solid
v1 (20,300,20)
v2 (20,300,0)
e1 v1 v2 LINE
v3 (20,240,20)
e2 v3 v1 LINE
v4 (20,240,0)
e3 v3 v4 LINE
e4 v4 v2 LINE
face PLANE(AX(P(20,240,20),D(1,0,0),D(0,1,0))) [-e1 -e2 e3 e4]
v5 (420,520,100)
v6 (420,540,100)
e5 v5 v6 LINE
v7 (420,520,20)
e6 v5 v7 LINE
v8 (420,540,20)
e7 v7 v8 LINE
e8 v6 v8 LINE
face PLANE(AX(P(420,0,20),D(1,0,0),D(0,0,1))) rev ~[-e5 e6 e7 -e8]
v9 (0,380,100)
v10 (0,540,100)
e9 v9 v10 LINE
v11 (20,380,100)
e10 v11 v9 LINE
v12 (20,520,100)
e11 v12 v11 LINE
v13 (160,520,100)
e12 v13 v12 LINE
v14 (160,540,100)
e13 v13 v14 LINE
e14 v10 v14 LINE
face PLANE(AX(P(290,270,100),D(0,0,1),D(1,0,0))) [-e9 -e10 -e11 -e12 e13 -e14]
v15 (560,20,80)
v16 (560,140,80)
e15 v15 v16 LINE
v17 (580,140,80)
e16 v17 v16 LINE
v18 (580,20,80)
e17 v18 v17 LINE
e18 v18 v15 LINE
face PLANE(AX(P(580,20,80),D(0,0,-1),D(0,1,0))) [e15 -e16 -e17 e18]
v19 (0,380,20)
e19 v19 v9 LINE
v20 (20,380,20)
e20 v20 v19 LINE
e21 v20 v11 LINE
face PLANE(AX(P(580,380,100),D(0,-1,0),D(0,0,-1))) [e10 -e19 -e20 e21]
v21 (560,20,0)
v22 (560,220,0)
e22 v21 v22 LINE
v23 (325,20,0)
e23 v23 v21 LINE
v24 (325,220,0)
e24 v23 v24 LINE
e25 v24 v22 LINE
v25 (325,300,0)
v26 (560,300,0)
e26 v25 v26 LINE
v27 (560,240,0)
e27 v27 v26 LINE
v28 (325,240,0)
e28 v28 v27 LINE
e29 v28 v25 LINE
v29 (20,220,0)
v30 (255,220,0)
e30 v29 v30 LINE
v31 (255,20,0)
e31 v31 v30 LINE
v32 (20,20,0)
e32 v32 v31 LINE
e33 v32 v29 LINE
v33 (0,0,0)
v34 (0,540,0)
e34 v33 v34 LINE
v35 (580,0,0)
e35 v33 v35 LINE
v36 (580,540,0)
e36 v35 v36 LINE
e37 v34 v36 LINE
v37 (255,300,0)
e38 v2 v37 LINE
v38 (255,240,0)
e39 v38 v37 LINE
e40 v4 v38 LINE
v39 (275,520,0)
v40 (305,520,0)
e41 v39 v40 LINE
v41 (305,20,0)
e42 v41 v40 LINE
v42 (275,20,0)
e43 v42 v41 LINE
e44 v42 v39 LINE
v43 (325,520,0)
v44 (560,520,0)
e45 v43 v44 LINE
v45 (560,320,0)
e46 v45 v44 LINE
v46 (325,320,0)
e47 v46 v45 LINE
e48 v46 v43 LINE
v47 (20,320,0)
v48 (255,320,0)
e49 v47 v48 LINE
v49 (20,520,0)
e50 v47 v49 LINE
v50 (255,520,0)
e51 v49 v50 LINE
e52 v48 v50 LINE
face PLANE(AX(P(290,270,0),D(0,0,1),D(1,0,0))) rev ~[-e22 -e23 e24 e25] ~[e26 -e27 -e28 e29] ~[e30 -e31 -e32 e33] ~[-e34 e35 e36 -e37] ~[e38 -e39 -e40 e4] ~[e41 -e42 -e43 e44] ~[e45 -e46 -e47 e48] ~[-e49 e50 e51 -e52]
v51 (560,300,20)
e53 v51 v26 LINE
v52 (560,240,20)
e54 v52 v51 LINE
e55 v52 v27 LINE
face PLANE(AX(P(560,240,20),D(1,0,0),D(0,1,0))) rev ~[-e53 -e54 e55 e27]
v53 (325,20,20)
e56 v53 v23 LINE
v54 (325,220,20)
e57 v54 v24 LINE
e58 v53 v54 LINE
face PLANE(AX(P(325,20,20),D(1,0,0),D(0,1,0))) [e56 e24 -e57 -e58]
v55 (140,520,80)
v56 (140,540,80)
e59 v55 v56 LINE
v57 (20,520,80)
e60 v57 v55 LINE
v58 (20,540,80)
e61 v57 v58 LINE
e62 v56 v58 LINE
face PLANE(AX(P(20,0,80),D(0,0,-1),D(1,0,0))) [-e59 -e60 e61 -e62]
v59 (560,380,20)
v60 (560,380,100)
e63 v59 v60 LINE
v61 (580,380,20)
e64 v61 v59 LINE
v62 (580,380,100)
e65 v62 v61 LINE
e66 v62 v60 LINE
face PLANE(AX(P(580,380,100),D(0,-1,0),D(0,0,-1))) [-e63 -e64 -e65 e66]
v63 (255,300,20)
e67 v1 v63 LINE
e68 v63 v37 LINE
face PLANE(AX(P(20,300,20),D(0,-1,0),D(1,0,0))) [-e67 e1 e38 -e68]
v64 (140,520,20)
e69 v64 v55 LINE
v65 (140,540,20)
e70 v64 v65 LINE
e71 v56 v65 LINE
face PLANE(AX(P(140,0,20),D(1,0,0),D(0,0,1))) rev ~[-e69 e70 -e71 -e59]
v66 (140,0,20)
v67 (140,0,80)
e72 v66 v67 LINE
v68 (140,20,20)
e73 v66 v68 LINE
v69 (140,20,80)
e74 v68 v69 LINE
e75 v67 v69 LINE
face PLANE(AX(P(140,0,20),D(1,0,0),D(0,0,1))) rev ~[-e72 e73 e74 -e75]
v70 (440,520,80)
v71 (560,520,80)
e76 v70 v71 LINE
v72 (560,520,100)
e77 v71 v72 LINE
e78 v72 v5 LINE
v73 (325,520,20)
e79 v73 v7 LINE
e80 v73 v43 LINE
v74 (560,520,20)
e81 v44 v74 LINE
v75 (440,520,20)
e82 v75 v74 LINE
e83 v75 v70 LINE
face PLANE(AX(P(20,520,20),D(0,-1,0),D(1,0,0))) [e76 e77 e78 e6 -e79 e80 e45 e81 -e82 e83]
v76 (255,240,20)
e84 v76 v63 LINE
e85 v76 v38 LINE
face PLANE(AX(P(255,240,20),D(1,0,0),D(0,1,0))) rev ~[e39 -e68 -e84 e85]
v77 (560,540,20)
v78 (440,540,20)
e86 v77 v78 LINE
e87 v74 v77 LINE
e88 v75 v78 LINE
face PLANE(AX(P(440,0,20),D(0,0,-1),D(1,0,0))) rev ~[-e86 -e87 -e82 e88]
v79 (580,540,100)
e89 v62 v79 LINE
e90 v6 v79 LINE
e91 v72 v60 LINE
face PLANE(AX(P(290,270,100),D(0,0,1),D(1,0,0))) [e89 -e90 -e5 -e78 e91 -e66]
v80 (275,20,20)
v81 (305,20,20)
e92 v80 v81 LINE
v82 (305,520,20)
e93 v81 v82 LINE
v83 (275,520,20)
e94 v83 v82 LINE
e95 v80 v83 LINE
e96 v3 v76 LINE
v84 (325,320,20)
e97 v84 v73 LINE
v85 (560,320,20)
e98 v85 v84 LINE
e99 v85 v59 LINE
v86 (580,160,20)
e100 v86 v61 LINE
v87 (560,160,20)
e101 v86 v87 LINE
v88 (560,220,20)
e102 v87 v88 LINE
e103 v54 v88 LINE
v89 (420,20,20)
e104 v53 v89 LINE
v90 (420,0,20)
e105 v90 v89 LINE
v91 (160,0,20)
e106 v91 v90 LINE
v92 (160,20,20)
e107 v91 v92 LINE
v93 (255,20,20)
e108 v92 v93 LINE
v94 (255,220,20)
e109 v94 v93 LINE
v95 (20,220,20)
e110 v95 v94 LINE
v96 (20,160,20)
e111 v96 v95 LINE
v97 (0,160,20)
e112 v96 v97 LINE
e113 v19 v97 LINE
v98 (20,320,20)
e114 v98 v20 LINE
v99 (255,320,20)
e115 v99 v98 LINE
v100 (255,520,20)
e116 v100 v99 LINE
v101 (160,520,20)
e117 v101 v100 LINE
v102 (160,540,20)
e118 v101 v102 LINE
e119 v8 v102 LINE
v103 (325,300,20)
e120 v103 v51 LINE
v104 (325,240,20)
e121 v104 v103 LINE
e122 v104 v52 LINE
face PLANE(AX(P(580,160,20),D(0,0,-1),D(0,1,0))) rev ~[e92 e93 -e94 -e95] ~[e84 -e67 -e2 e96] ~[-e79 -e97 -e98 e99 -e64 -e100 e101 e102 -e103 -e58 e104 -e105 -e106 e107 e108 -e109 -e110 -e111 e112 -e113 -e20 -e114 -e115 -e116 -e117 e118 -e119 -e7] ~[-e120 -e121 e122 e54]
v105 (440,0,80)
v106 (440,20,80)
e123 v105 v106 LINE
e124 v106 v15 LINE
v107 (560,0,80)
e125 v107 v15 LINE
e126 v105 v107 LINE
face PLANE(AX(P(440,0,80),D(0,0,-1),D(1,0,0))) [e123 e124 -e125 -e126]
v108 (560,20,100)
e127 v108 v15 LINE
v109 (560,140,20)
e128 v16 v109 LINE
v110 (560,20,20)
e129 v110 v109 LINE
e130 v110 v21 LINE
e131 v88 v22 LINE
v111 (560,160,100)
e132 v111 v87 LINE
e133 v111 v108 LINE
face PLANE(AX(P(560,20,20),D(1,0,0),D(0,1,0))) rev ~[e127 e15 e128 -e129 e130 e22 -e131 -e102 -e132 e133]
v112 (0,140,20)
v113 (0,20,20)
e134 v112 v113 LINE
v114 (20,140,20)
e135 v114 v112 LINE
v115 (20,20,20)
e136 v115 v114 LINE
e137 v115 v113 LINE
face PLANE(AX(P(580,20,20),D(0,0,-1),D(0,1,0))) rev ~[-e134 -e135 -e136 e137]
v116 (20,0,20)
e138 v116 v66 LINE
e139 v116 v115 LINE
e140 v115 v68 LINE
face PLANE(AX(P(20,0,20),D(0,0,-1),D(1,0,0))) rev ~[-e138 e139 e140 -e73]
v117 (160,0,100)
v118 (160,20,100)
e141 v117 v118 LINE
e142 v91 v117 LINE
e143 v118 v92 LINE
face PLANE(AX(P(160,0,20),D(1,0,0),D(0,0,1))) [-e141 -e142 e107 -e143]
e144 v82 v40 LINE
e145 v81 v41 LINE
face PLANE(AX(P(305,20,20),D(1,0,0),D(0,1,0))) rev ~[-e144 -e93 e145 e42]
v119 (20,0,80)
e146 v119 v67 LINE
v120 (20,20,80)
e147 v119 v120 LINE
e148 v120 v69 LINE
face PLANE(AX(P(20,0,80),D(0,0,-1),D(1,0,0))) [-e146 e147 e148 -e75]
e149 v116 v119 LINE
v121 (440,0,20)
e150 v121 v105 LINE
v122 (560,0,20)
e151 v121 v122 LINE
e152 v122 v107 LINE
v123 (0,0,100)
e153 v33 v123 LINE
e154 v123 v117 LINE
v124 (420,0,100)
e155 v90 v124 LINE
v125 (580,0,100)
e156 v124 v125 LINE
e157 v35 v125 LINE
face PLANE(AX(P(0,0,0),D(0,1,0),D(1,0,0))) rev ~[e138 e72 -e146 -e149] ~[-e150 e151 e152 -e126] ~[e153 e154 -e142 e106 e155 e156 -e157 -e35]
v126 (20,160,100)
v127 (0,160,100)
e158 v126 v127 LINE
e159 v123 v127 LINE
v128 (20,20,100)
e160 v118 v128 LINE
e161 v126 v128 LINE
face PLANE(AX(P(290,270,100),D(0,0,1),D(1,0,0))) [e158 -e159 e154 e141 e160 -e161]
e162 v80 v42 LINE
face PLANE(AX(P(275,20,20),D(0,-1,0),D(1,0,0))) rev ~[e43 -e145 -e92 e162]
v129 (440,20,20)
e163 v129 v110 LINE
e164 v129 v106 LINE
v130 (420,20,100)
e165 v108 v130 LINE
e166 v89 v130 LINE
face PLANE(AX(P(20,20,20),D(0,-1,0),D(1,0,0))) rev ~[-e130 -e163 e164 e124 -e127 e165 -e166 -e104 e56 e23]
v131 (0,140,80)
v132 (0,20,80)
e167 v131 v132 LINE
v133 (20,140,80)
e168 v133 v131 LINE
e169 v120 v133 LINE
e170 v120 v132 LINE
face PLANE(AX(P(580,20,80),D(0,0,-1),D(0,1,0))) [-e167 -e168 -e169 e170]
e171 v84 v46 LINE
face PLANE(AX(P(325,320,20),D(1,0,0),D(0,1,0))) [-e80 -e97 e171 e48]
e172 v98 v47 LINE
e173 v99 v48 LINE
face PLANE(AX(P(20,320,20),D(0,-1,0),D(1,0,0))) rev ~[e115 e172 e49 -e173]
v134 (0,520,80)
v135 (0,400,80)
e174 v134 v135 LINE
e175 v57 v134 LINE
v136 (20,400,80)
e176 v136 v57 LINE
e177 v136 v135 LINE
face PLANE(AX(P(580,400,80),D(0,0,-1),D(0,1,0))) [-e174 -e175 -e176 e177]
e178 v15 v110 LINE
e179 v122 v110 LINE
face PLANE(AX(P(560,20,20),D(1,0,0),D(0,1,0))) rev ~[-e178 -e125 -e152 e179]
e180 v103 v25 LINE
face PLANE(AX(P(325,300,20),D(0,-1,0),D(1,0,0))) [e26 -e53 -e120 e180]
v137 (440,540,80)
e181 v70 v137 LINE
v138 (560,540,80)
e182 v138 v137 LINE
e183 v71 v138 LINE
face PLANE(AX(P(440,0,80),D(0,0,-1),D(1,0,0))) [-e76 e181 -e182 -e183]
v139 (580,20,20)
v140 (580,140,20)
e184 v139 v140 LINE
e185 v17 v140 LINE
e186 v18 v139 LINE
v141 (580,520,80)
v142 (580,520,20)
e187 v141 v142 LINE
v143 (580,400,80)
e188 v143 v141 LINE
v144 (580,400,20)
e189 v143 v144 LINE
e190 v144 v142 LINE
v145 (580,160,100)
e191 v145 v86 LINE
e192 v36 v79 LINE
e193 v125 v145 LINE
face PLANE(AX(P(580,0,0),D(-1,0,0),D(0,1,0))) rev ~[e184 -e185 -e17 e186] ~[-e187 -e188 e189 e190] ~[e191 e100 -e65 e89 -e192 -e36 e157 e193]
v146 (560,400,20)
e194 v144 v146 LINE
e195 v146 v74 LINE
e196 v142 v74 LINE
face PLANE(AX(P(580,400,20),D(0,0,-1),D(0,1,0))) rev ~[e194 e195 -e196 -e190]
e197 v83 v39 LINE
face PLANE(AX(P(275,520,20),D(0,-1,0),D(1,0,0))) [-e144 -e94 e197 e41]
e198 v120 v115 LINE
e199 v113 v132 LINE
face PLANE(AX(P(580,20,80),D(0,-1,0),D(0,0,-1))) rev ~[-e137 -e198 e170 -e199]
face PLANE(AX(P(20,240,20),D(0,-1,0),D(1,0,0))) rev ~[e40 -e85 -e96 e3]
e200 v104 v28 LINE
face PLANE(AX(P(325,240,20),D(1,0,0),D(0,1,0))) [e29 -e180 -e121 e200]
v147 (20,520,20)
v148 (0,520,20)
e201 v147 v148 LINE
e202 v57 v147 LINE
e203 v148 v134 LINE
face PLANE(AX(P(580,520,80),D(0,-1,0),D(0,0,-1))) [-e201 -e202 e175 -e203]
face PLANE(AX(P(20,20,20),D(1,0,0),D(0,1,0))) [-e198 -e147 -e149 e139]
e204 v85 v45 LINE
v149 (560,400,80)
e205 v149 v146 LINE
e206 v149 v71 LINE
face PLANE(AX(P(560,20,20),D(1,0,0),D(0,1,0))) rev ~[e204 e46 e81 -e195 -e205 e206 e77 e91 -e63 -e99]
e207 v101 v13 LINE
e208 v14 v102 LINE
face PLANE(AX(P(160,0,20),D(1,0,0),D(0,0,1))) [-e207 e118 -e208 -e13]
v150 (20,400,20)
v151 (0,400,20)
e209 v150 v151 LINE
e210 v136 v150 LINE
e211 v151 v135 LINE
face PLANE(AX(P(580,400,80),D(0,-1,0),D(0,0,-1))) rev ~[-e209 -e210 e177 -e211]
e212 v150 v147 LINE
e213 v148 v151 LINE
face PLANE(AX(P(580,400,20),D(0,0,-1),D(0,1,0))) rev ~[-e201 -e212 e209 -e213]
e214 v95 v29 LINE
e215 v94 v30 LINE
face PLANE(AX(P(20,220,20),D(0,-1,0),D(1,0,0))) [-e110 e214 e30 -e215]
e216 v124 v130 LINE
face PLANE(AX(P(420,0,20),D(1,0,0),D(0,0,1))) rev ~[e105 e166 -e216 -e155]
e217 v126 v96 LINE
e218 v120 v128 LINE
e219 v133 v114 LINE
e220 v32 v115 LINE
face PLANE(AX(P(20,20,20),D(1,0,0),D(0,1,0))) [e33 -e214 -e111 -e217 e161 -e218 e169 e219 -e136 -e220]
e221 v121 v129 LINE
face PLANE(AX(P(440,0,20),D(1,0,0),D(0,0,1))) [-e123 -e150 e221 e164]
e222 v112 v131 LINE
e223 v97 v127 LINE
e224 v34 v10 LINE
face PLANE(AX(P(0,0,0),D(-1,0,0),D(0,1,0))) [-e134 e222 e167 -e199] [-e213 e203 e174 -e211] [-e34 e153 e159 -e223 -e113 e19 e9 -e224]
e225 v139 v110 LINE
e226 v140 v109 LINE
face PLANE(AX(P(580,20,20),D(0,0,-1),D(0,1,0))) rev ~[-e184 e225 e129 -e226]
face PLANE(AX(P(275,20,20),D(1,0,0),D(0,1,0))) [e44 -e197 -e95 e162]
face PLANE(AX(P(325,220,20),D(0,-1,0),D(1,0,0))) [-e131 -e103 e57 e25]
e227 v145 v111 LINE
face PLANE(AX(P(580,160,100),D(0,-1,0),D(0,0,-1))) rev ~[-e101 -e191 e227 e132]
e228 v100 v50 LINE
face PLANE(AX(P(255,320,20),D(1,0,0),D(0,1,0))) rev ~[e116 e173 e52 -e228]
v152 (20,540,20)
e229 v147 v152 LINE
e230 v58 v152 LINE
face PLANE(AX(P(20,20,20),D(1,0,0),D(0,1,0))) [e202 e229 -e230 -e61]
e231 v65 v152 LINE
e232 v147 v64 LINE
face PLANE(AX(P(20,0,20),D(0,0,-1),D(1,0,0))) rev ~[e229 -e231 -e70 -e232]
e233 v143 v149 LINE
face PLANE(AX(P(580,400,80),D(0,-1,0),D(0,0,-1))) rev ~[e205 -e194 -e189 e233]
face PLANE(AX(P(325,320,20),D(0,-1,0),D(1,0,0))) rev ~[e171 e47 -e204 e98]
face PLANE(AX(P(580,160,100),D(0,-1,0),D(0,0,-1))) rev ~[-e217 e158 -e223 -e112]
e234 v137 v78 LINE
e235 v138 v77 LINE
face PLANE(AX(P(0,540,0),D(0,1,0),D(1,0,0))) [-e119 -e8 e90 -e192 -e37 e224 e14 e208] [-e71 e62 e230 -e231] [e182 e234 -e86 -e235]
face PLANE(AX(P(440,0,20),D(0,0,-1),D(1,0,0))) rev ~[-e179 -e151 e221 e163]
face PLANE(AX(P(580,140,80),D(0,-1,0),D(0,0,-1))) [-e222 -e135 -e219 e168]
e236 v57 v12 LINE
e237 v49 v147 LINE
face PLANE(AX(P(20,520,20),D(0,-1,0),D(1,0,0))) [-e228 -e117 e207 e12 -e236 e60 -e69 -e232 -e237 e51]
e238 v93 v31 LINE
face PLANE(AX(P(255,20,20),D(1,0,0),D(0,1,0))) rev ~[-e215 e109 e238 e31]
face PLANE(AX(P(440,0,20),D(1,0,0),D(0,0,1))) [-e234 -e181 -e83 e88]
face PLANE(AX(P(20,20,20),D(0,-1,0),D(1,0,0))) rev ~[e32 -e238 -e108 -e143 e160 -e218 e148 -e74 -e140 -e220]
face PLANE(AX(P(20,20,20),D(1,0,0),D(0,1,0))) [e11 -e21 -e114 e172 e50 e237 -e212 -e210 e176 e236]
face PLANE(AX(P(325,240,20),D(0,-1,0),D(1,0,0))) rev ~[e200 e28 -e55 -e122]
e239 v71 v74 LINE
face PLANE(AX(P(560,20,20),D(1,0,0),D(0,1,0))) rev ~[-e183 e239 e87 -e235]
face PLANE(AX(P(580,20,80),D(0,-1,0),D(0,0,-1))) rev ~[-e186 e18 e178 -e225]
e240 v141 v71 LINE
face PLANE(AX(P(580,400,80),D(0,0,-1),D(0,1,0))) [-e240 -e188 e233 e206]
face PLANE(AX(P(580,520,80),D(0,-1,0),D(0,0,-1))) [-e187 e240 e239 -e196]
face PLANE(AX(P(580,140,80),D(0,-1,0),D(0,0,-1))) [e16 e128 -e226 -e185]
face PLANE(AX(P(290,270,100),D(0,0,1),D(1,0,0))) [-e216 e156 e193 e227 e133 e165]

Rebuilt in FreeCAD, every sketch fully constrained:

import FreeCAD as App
import Part
import Sketcher
from FreeCAD import Vector
Q = App.Units.Quantity


def faces_at(feature, points):
    """Names of the faces that lie closest to the given points."""
    faces = feature.Shape.Faces
    near = lambda p: min(range(len(faces)), key=lambda i: faces[i].distToShape(Part.Vertex(*p))[0])
    return sorted({f"Face{near(p) + 1}" for p in points})

doc = App.newDocument("Part")
body = doc.addObject("PartDesign::Body", "Body")

# Sketch on XY plane
sketch1 = doc.addObject("Sketcher::SketchObject", "Sketch")
body.addObject(sketch1)
sketch1.AttachmentSupport = (doc.XY_Plane, [""])
sketch1.MapMode = "FlatFace"
sketch1.addGeometry(Part.LineSegment(Vector(0, 540, 0), Vector(0, 0, 0)), False)
sketch1.addGeometry(Part.LineSegment(Vector(0, 0, 0), Vector(580, 0, 0)), False)
sketch1.addGeometry(Part.LineSegment(Vector(580, 0, 0), Vector(580, 540, 0)), False)
sketch1.addGeometry(Part.LineSegment(Vector(580, 540, 0), Vector(0, 540, 0)), False)
sketch1.addConstraint(Sketcher.Constraint("Coincident", 0, 2, 1, 1))
sketch1.addConstraint(Sketcher.Constraint("Coincident", 1, 2, 2, 1))
sketch1.addConstraint(Sketcher.Constraint("Coincident", 2, 2, 3, 1))
sketch1.addConstraint(Sketcher.Constraint("Coincident", 3, 2, 0, 1))
sketch1.addConstraint(Sketcher.Constraint("Vertical", 0))
sketch1.addConstraint(Sketcher.Constraint("Horizontal", 1))
sketch1.addConstraint(Sketcher.Constraint("Vertical", 2))
sketch1.addConstraint(Sketcher.Constraint("Horizontal", 3))
sketch1.addConstraint(Sketcher.Constraint("Coincident", 0, 2, -1, 1))
sketch1.addConstraint(Sketcher.Constraint("DistanceX", 1, 1, 1, 2, Q("580 mm")))
sketch1.addConstraint(Sketcher.Constraint("DistanceY", 0, 2, 0, 1, Q("540 mm")))
pad1 = doc.addObject("PartDesign::Pad", "Pad")
body.addObject(pad1)
pad1.Profile = sketch1
pad1.Length = 100
doc.recompute()

thickness = doc.addObject("PartDesign::Thickness", "Thickness")
body.addObject(thickness)
thickness.Base = (pad1, faces_at(pad1, [(290, 270, 100)]))
thickness.Value = 20
thickness.Reversed = True
thickness.Join = "Intersection"

# Sketch on XY plane
sketch2 = doc.addObject("Sketcher::SketchObject", "Sketch001")
body.addObject(sketch2)
sketch2.AttachmentSupport = (doc.XY_Plane, [""])
sketch2.MapMode = "FlatFace"
sketch2.AttachmentOffset = App.Placement(Vector(0, 0, 20), App.Rotation())
sketch2.addGeometry(Part.LineSegment(Vector(325, 220, 0), Vector(325, 20, 0)), False)
sketch2.addGeometry(Part.LineSegment(Vector(325, 20, 0), Vector(560, 20, 0)), False)
sketch2.addGeometry(Part.LineSegment(Vector(560, 20, 0), Vector(560, 220, 0)), False)
sketch2.addGeometry(Part.LineSegment(Vector(560, 220, 0), Vector(325, 220, 0)), False)
sketch2.addConstraint(Sketcher.Constraint("Coincident", 0, 2, 1, 1))
sketch2.addConstraint(Sketcher.Constraint("Coincident", 1, 2, 2, 1))
sketch2.addConstraint(Sketcher.Constraint("Coincident", 2, 2, 3, 1))
sketch2.addConstraint(Sketcher.Constraint("Coincident", 3, 2, 0, 1))
sketch2.addConstraint(Sketcher.Constraint("Vertical", 0))
sketch2.addConstraint(Sketcher.Constraint("Horizontal", 1))
sketch2.addConstraint(Sketcher.Constraint("Vertical", 2))
sketch2.addConstraint(Sketcher.Constraint("Horizontal", 3))
sketch2.addConstraint(Sketcher.Constraint("DistanceX", 1, 1, 1, 2, Q("235 mm")))
sketch2.addConstraint(Sketcher.Constraint("DistanceY", 0, 2, 0, 1, Q("200 mm")))
sketch2.addConstraint(Sketcher.Constraint("DistanceX", -1, 1, 0, 2, Q("325 mm")))
sketch2.addConstraint(Sketcher.Constraint("DistanceY", -1, 1, 0, 2, Q("20 mm")))
pocket1 = doc.addObject("PartDesign::Pocket", "Pocket")
body.addObject(pocket1)
pocket1.Profile = sketch2
pocket1.Length = 43
doc.recompute()

linearpattern = doc.addObject("PartDesign::LinearPattern", "LinearPattern")
body.addObject(linearpattern)
linearpattern.Originals = [pocket1]
linearpattern.Direction = (doc.X_Axis, [""])
linearpattern.Mode = "offset"
linearpattern.Offset = 305
linearpattern.Occurrences = 2
linearpattern.Reversed = True
body.Tip = linearpattern
doc.recompute()

linearpattern2 = doc.addObject("PartDesign::LinearPattern", "LinearPattern001")
body.addObject(linearpattern2)
linearpattern2.Originals = [pocket1]
linearpattern2.Direction = (doc.Y_Axis, [""])
linearpattern2.Mode = "offset"
linearpattern2.Offset = 300
linearpattern2.Occurrences = 2
body.Tip = linearpattern2

# Sketch on XY plane
sketch3 = doc.addObject("Sketcher::SketchObject", "Sketch002")
body.addObject(sketch3)
sketch3.AttachmentSupport = (doc.XY_Plane, [""])
sketch3.MapMode = "FlatFace"
sketch3.AttachmentOffset = App.Placement(Vector(0, 0, 20), App.Rotation())
sketch3.addGeometry(Part.LineSegment(Vector(20, 520, 0), Vector(20, 320, 0)), False)
sketch3.addGeometry(Part.LineSegment(Vector(20, 320, 0), Vector(255, 320, 0)), False)
sketch3.addGeometry(Part.LineSegment(Vector(255, 320, 0), Vector(255, 520, 0)), False)
sketch3.addGeometry(Part.LineSegment(Vector(255, 520, 0), Vector(20, 520, 0)), False)
sketch3.addConstraint(Sketcher.Constraint("Coincident", 0, 2, 1, 1))
sketch3.addConstraint(Sketcher.Constraint("Coincident", 1, 2, 2, 1))
sketch3.addConstraint(Sketcher.Constraint("Coincident", 2, 2, 3, 1))
sketch3.addConstraint(Sketcher.Constraint("Coincident", 3, 2, 0, 1))
sketch3.addConstraint(Sketcher.Constraint("Vertical", 0))
sketch3.addConstraint(Sketcher.Constraint("Horizontal", 1))
sketch3.addConstraint(Sketcher.Constraint("Vertical", 2))
sketch3.addConstraint(Sketcher.Constraint("Horizontal", 3))
sketch3.addConstraint(Sketcher.Constraint("DistanceX", 1, 1, 1, 2, Q("235 mm")))
sketch3.addConstraint(Sketcher.Constraint("DistanceY", 0, 2, 0, 1, Q("200 mm")))
sketch3.addConstraint(Sketcher.Constraint("DistanceX", -1, 1, 0, 2, Q("20 mm")))
sketch3.addConstraint(Sketcher.Constraint("DistanceY", -1, 1, 0, 2, Q("320 mm")))
pocket2 = doc.addObject("PartDesign::Pocket", "Pocket001")
body.addObject(pocket2)
pocket2.Profile = sketch3
pocket2.Length = 43

# Sketch on XY plane
sketch4 = doc.addObject("Sketcher::SketchObject", "Sketch003")
body.addObject(sketch4)
sketch4.AttachmentSupport = (doc.XY_Plane, [""])
sketch4.MapMode = "FlatFace"
sketch4.AttachmentOffset = App.Placement(Vector(0, 0, 20), App.Rotation())
sketch4.addGeometry(Part.LineSegment(Vector(325, 520, 0), Vector(325, 320, 0)), False)
sketch4.addGeometry(Part.LineSegment(Vector(325, 320, 0), Vector(560, 320, 0)), False)
sketch4.addGeometry(Part.LineSegment(Vector(560, 320, 0), Vector(560, 520, 0)), False)
sketch4.addGeometry(Part.LineSegment(Vector(560, 520, 0), Vector(325, 520, 0)), False)
sketch4.addConstraint(Sketcher.Constraint("Coincident", 0, 2, 1, 1))
sketch4.addConstraint(Sketcher.Constraint("Coincident", 1, 2, 2, 1))
sketch4.addConstraint(Sketcher.Constraint("Coincident", 2, 2, 3, 1))
sketch4.addConstraint(Sketcher.Constraint("Coincident", 3, 2, 0, 1))
sketch4.addConstraint(Sketcher.Constraint("Vertical", 0))
sketch4.addConstraint(Sketcher.Constraint("Horizontal", 1))
sketch4.addConstraint(Sketcher.Constraint("Vertical", 2))
sketch4.addConstraint(Sketcher.Constraint("Horizontal", 3))
sketch4.addConstraint(Sketcher.Constraint("DistanceX", 1, 1, 1, 2, Q("235 mm")))
sketch4.addConstraint(Sketcher.Constraint("DistanceY", 0, 2, 0, 1, Q("200 mm")))
sketch4.addConstraint(Sketcher.Constraint("DistanceX", -1, 1, 0, 2, Q("325 mm")))
sketch4.addConstraint(Sketcher.Constraint("DistanceY", -1, 1, 0, 2, Q("320 mm")))
pocket3 = doc.addObject("PartDesign::Pocket", "Pocket002")
body.addObject(pocket3)
pocket3.Profile = sketch4
pocket3.Length = 43

# Sketch on XZ plane
sketch5 = doc.addObject("Sketcher::SketchObject", "Sketch004")
body.addObject(sketch5)
sketch5.AttachmentSupport = (doc.XZ_Plane, [""])
sketch5.MapMode = "FlatFace"
sketch5.addGeometry(Part.LineSegment(Vector(160, 100, 0), Vector(160, 20, 0)), False)
sketch5.addGeometry(Part.LineSegment(Vector(160, 20, 0), Vector(420, 20, 0)), False)
sketch5.addGeometry(Part.LineSegment(Vector(420, 20, 0), Vector(420, 100, 0)), False)
sketch5.addGeometry(Part.LineSegment(Vector(420, 100, 0), Vector(160, 100, 0)), False)
sketch5.addConstraint(Sketcher.Constraint("Coincident", 0, 2, 1, 1))
sketch5.addConstraint(Sketcher.Constraint("Coincident", 1, 2, 2, 1))
sketch5.addConstraint(Sketcher.Constraint("Coincident", 2, 2, 3, 1))
sketch5.addConstraint(Sketcher.Constraint("Coincident", 3, 2, 0, 1))
sketch5.addConstraint(Sketcher.Constraint("Vertical", 0))
sketch5.addConstraint(Sketcher.Constraint("Horizontal", 1))
sketch5.addConstraint(Sketcher.Constraint("Vertical", 2))
sketch5.addConstraint(Sketcher.Constraint("Horizontal", 3))
sketch5.addConstraint(Sketcher.Constraint("DistanceX", 1, 1, 1, 2, Q("260 mm")))
sketch5.addConstraint(Sketcher.Constraint("DistanceY", 0, 2, 0, 1, Q("80 mm")))
sketch5.addConstraint(Sketcher.Constraint("DistanceX", -1, 1, 0, 2, Q("160 mm")))
sketch5.addConstraint(Sketcher.Constraint("DistanceY", -1, 1, 0, 2, Q("20 mm")))
pocket4 = doc.addObject("PartDesign::Pocket", "Pocket003")
body.addObject(pocket4)
pocket4.Profile = sketch5
pocket4.Length = 549

# Sketch on YZ plane
sketch6 = doc.addObject("Sketcher::SketchObject", "Sketch005")
body.addObject(sketch6)
sketch6.AttachmentSupport = (doc.YZ_Plane, [""])
sketch6.MapMode = "FlatFace"
sketch6.AttachmentOffset = App.Placement(Vector(0, 0, 580), App.Rotation())
sketch6.addGeometry(Part.LineSegment(Vector(380, 100, 0), Vector(160, 100, 0)), False)
sketch6.addGeometry(Part.LineSegment(Vector(160, 100, 0), Vector(160, 20, 0)), False)
sketch6.addGeometry(Part.LineSegment(Vector(160, 20, 0), Vector(380, 20, 0)), False)
sketch6.addGeometry(Part.LineSegment(Vector(380, 20, 0), Vector(380, 100, 0)), False)
sketch6.addConstraint(Sketcher.Constraint("Coincident", 0, 2, 1, 1))
sketch6.addConstraint(Sketcher.Constraint("Coincident", 1, 2, 2, 1))
sketch6.addConstraint(Sketcher.Constraint("Coincident", 2, 2, 3, 1))
sketch6.addConstraint(Sketcher.Constraint("Coincident", 3, 2, 0, 1))
sketch6.addConstraint(Sketcher.Constraint("Horizontal", 0))
sketch6.addConstraint(Sketcher.Constraint("Vertical", 1))
sketch6.addConstraint(Sketcher.Constraint("Horizontal", 2))
sketch6.addConstraint(Sketcher.Constraint("Vertical", 3))
sketch6.addConstraint(Sketcher.Constraint("DistanceX", 0, 2, 0, 1, Q("220 mm")))
sketch6.addConstraint(Sketcher.Constraint("DistanceY", 1, 2, 1, 1, Q("80 mm")))
sketch6.addConstraint(Sketcher.Constraint("DistanceX", -1, 1, 0, 2, Q("160 mm")))
sketch6.addConstraint(Sketcher.Constraint("DistanceY", -1, 1, 0, 2, Q("100 mm")))
pocket5 = doc.addObject("PartDesign::Pocket", "Pocket004")
body.addObject(pocket5)
pocket5.Profile = sketch6
pocket5.Length = 614

# Sketch on XZ plane
sketch7 = doc.addObject("Sketcher::SketchObject", "Sketch006")
body.addObject(sketch7)
sketch7.AttachmentSupport = (doc.XZ_Plane, [""])
sketch7.MapMode = "FlatFace"
sketch7.addGeometry(Part.LineSegment(Vector(20, 80, 0), Vector(20, 20, 0)), False)
sketch7.addGeometry(Part.LineSegment(Vector(20, 20, 0), Vector(140, 20, 0)), False)
sketch7.addGeometry(Part.LineSegment(Vector(140, 20, 0), Vector(140, 80, 0)), False)
sketch7.addGeometry(Part.LineSegment(Vector(140, 80, 0), Vector(20, 80, 0)), False)
sketch7.addConstraint(Sketcher.Constraint("Coincident", 0, 2, 1, 1))
sketch7.addConstraint(Sketcher.Constraint("Coincident", 1, 2, 2, 1))
sketch7.addConstraint(Sketcher.Constraint("Coincident", 2, 2, 3, 1))
sketch7.addConstraint(Sketcher.Constraint("Coincident", 3, 2, 0, 1))
sketch7.addConstraint(Sketcher.Constraint("Vertical", 0))
sketch7.addConstraint(Sketcher.Constraint("Horizontal", 1))
sketch7.addConstraint(Sketcher.Constraint("Vertical", 2))
sketch7.addConstraint(Sketcher.Constraint("Horizontal", 3))
sketch7.addConstraint(Sketcher.Constraint("DistanceX", 1, 1, 1, 2, Q("120 mm")))
sketch7.addConstraint(Sketcher.Constraint("DistanceY", 0, 2, 0, 1, Q("60 mm")))
sketch7.addConstraint(Sketcher.Constraint("DistanceX", -1, 1, 0, 2, Q("20 mm")))
sketch7.addConstraint(Sketcher.Constraint("DistanceY", -1, 1, 0, 2, Q("20 mm")))
pocket6 = doc.addObject("PartDesign::Pocket", "Pocket005")
body.addObject(pocket6)
pocket6.Profile = sketch7
pocket6.Length = 614

# Sketch on XZ plane
sketch8 = doc.addObject("Sketcher::SketchObject", "Sketch007")
body.addObject(sketch8)
sketch8.AttachmentSupport = (doc.XZ_Plane, [""])
sketch8.MapMode = "FlatFace"
sketch8.addGeometry(Part.LineSegment(Vector(440, 80, 0), Vector(440, 20, 0)), False)
sketch8.addGeometry(Part.LineSegment(Vector(440, 20, 0), Vector(560, 20, 0)), False)
sketch8.addGeometry(Part.LineSegment(Vector(560, 20, 0), Vector(560, 80, 0)), False)
sketch8.addGeometry(Part.LineSegment(Vector(560, 80, 0), Vector(440, 80, 0)), False)
sketch8.addConstraint(Sketcher.Constraint("Coincident", 0, 2, 1, 1))
sketch8.addConstraint(Sketcher.Constraint("Coincident", 1, 2, 2, 1))
sketch8.addConstraint(Sketcher.Constraint("Coincident", 2, 2, 3, 1))
sketch8.addConstraint(Sketcher.Constraint("Coincident", 3, 2, 0, 1))
sketch8.addConstraint(Sketcher.Constraint("Vertical", 0))
sketch8.addConstraint(Sketcher.Constraint("Horizontal", 1))
sketch8.addConstraint(Sketcher.Constraint("Vertical", 2))
sketch8.addConstraint(Sketcher.Constraint("Horizontal", 3))
sketch8.addConstraint(Sketcher.Constraint("DistanceX", 1, 1, 1, 2, Q("120 mm")))
sketch8.addConstraint(Sketcher.Constraint("DistanceY", 0, 2, 0, 1, Q("60 mm")))
sketch8.addConstraint(Sketcher.Constraint("DistanceX", -1, 1, 0, 2, Q("440 mm")))
sketch8.addConstraint(Sketcher.Constraint("DistanceY", -1, 1, 0, 2, Q("20 mm")))
pocket7 = doc.addObject("PartDesign::Pocket", "Pocket006")
body.addObject(pocket7)
pocket7.Profile = sketch8
pocket7.Length = 614

# Sketch on YZ plane
sketch9 = doc.addObject("Sketcher::SketchObject", "Sketch008")
body.addObject(sketch9)
sketch9.AttachmentSupport = (doc.YZ_Plane, [""])
sketch9.MapMode = "FlatFace"
sketch9.AttachmentOffset = App.Placement(Vector(0, 0, 580), App.Rotation())
sketch9.addGeometry(Part.LineSegment(Vector(520, 80, 0), Vector(400, 80, 0)), False)
sketch9.addGeometry(Part.LineSegment(Vector(400, 80, 0), Vector(400, 20, 0)), False)
sketch9.addGeometry(Part.LineSegment(Vector(400, 20, 0), Vector(520, 20, 0)), False)
sketch9.addGeometry(Part.LineSegment(Vector(520, 20, 0), Vector(520, 80, 0)), False)
sketch9.addConstraint(Sketcher.Constraint("Coincident", 0, 2, 1, 1))
sketch9.addConstraint(Sketcher.Constraint("Coincident", 1, 2, 2, 1))
sketch9.addConstraint(Sketcher.Constraint("Coincident", 2, 2, 3, 1))
sketch9.addConstraint(Sketcher.Constraint("Coincident", 3, 2, 0, 1))
sketch9.addConstraint(Sketcher.Constraint("Horizontal", 0))
sketch9.addConstraint(Sketcher.Constraint("Vertical", 1))
sketch9.addConstraint(Sketcher.Constraint("Horizontal", 2))
sketch9.addConstraint(Sketcher.Constraint("Vertical", 3))
sketch9.addConstraint(Sketcher.Constraint("DistanceX", 0, 2, 0, 1, Q("120 mm")))
sketch9.addConstraint(Sketcher.Constraint("DistanceY", 1, 2, 1, 1, Q("60 mm")))
sketch9.addConstraint(Sketcher.Constraint("DistanceX", -1, 1, 0, 2, Q("400 mm")))
sketch9.addConstraint(Sketcher.Constraint("DistanceY", -1, 1, 0, 2, Q("80 mm")))
pocket8 = doc.addObject("PartDesign::Pocket", "Pocket007")
body.addObject(pocket8)
pocket8.Profile = sketch9
pocket8.Length = 602

# Sketch on YZ plane
sketch10 = doc.addObject("Sketcher::SketchObject", "Sketch009")
body.addObject(sketch10)
sketch10.AttachmentSupport = (doc.YZ_Plane, [""])
sketch10.MapMode = "FlatFace"
sketch10.AttachmentOffset = App.Placement(Vector(0, 0, 580), App.Rotation())
sketch10.addGeometry(Part.LineSegment(Vector(140, 80, 0), Vector(20, 80, 0)), False)
sketch10.addGeometry(Part.LineSegment(Vector(20, 80, 0), Vector(20, 20, 0)), False)
sketch10.addGeometry(Part.LineSegment(Vector(20, 20, 0), Vector(140, 20, 0)), False)
sketch10.addGeometry(Part.LineSegment(Vector(140, 20, 0), Vector(140, 80, 0)), False)
sketch10.addConstraint(Sketcher.Constraint("Coincident", 0, 2, 1, 1))
sketch10.addConstraint(Sketcher.Constraint("Coincident", 1, 2, 2, 1))
sketch10.addConstraint(Sketcher.Constraint("Coincident", 2, 2, 3, 1))
sketch10.addConstraint(Sketcher.Constraint("Coincident", 3, 2, 0, 1))
sketch10.addConstraint(Sketcher.Constraint("Horizontal", 0))
sketch10.addConstraint(Sketcher.Constraint("Vertical", 1))
sketch10.addConstraint(Sketcher.Constraint("Horizontal", 2))
sketch10.addConstraint(Sketcher.Constraint("Vertical", 3))
sketch10.addConstraint(Sketcher.Constraint("DistanceX", 0, 2, 0, 1, Q("120 mm")))
sketch10.addConstraint(Sketcher.Constraint("DistanceY", 1, 2, 1, 1, Q("60 mm")))
sketch10.addConstraint(Sketcher.Constraint("DistanceX", -1, 1, 0, 2, Q("20 mm")))
sketch10.addConstraint(Sketcher.Constraint("DistanceY", -1, 1, 0, 2, Q("80 mm")))
pocket9 = doc.addObject("PartDesign::Pocket", "Pocket008")
body.addObject(pocket9)
pocket9.Profile = sketch10
pocket9.Length = 602

# Sketch on XY plane
sketch11 = doc.addObject("Sketcher::SketchObject", "Sketch010")
body.addObject(sketch11)
sketch11.AttachmentSupport = (doc.XY_Plane, [""])
sketch11.MapMode = "FlatFace"
sketch11.AttachmentOffset = App.Placement(Vector(0, 0, 20), App.Rotation())
sketch11.addGeometry(Part.LineSegment(Vector(275, 520, 0), Vector(275, 20, 0)), False)
sketch11.addGeometry(Part.LineSegment(Vector(275, 20, 0), Vector(305, 20, 0)), False)
sketch11.addGeometry(Part.LineSegment(Vector(305, 20, 0), Vector(305, 520, 0)), False)
sketch11.addGeometry(Part.LineSegment(Vector(305, 520, 0), Vector(275, 520, 0)), False)
sketch11.addConstraint(Sketcher.Constraint("Coincident", 0, 2, 1, 1))
sketch11.addConstraint(Sketcher.Constraint("Coincident", 1, 2, 2, 1))
sketch11.addConstraint(Sketcher.Constraint("Coincident", 2, 2, 3, 1))
sketch11.addConstraint(Sketcher.Constraint("Coincident", 3, 2, 0, 1))
sketch11.addConstraint(Sketcher.Constraint("Vertical", 0))
sketch11.addConstraint(Sketcher.Constraint("Horizontal", 1))
sketch11.addConstraint(Sketcher.Constraint("Vertical", 2))
sketch11.addConstraint(Sketcher.Constraint("Horizontal", 3))
sketch11.addConstraint(Sketcher.Constraint("DistanceX", 1, 1, 1, 2, Q("30 mm")))
sketch11.addConstraint(Sketcher.Constraint("DistanceY", 0, 2, 0, 1, Q("500 mm")))
sketch11.addConstraint(Sketcher.Constraint("DistanceX", -1, 1, 0, 2, Q("275 mm")))
sketch11.addConstraint(Sketcher.Constraint("DistanceY", -1, 1, 0, 2, Q("20 mm")))
pocket10 = doc.addObject("PartDesign::Pocket", "Pocket009")
body.addObject(pocket10)
pocket10.Profile = sketch11
pocket10.Length = 66

# Sketch on XY plane
sketch12 = doc.addObject("Sketcher::SketchObject", "Sketch011")
body.addObject(sketch12)
sketch12.AttachmentSupport = (doc.XY_Plane, [""])
sketch12.MapMode = "FlatFace"
sketch12.AttachmentOffset = App.Placement(Vector(0, 0, 20), App.Rotation())
sketch12.addGeometry(Part.LineSegment(Vector(20, 300, 0), Vector(20, 240, 0)), False)
sketch12.addGeometry(Part.LineSegment(Vector(20, 240, 0), Vector(255, 240, 0)), False)
sketch12.addGeometry(Part.LineSegment(Vector(255, 240, 0), Vector(255, 300, 0)), False)
sketch12.addGeometry(Part.LineSegment(Vector(255, 300, 0), Vector(20, 300, 0)), False)
sketch12.addConstraint(Sketcher.Constraint("Coincident", 0, 2, 1, 1))
sketch12.addConstraint(Sketcher.Constraint("Coincident", 1, 2, 2, 1))
sketch12.addConstraint(Sketcher.Constraint("Coincident", 2, 2, 3, 1))
sketch12.addConstraint(Sketcher.Constraint("Coincident", 3, 2, 0, 1))
sketch12.addConstraint(Sketcher.Constraint("Vertical", 0))
sketch12.addConstraint(Sketcher.Constraint("Horizontal", 1))
sketch12.addConstraint(Sketcher.Constraint("Vertical", 2))
sketch12.addConstraint(Sketcher.Constraint("Horizontal", 3))
sketch12.addConstraint(Sketcher.Constraint("DistanceX", 1, 1, 1, 2, Q("235 mm")))
sketch12.addConstraint(Sketcher.Constraint("DistanceY", 0, 2, 0, 1, Q("60 mm")))
sketch12.addConstraint(Sketcher.Constraint("DistanceX", -1, 1, 0, 2, Q("20 mm")))
sketch12.addConstraint(Sketcher.Constraint("DistanceY", -1, 1, 0, 2, Q("240 mm")))
pocket11 = doc.addObject("PartDesign::Pocket", "Pocket010")
body.addObject(pocket11)
pocket11.Profile = sketch12
pocket11.Length = 41

# Sketch on XY plane
sketch13 = doc.addObject("Sketcher::SketchObject", "Sketch012")
body.addObject(sketch13)
sketch13.AttachmentSupport = (doc.XY_Plane, [""])
sketch13.MapMode = "FlatFace"
sketch13.AttachmentOffset = App.Placement(Vector(0, 0, 20), App.Rotation())
sketch13.addGeometry(Part.LineSegment(Vector(325, 300, 0), Vector(325, 240, 0)), False)
sketch13.addGeometry(Part.LineSegment(Vector(325, 240, 0), Vector(560, 240, 0)), False)
sketch13.addGeometry(Part.LineSegment(Vector(560, 240, 0), Vector(560, 300, 0)), False)
sketch13.addGeometry(Part.LineSegment(Vector(560, 300, 0), Vector(325, 300, 0)), False)
sketch13.addConstraint(Sketcher.Constraint("Coincident", 0, 2, 1, 1))
sketch13.addConstraint(Sketcher.Constraint("Coincident", 1, 2, 2, 1))
sketch13.addConstraint(Sketcher.Constraint("Coincident", 2, 2, 3, 1))
sketch13.addConstraint(Sketcher.Constraint("Coincident", 3, 2, 0, 1))
sketch13.addConstraint(Sketcher.Constraint("Vertical", 0))
sketch13.addConstraint(Sketcher.Constraint("Horizontal", 1))
sketch13.addConstraint(Sketcher.Constraint("Vertical", 2))
sketch13.addConstraint(Sketcher.Constraint("Horizontal", 3))
sketch13.addConstraint(Sketcher.Constraint("DistanceX", 1, 1, 1, 2, Q("235 mm")))
sketch13.addConstraint(Sketcher.Constraint("DistanceY", 0, 2, 0, 1, Q("60 mm")))
sketch13.addConstraint(Sketcher.Constraint("DistanceX", -1, 1, 0, 2, Q("325 mm")))
sketch13.addConstraint(Sketcher.Constraint("DistanceY", -1, 1, 0, 2, Q("240 mm")))
pocket12 = doc.addObject("PartDesign::Pocket", "Pocket011")
body.addObject(pocket12)
pocket12.Profile = sketch13
pocket12.Length = 72

doc.recompute()
